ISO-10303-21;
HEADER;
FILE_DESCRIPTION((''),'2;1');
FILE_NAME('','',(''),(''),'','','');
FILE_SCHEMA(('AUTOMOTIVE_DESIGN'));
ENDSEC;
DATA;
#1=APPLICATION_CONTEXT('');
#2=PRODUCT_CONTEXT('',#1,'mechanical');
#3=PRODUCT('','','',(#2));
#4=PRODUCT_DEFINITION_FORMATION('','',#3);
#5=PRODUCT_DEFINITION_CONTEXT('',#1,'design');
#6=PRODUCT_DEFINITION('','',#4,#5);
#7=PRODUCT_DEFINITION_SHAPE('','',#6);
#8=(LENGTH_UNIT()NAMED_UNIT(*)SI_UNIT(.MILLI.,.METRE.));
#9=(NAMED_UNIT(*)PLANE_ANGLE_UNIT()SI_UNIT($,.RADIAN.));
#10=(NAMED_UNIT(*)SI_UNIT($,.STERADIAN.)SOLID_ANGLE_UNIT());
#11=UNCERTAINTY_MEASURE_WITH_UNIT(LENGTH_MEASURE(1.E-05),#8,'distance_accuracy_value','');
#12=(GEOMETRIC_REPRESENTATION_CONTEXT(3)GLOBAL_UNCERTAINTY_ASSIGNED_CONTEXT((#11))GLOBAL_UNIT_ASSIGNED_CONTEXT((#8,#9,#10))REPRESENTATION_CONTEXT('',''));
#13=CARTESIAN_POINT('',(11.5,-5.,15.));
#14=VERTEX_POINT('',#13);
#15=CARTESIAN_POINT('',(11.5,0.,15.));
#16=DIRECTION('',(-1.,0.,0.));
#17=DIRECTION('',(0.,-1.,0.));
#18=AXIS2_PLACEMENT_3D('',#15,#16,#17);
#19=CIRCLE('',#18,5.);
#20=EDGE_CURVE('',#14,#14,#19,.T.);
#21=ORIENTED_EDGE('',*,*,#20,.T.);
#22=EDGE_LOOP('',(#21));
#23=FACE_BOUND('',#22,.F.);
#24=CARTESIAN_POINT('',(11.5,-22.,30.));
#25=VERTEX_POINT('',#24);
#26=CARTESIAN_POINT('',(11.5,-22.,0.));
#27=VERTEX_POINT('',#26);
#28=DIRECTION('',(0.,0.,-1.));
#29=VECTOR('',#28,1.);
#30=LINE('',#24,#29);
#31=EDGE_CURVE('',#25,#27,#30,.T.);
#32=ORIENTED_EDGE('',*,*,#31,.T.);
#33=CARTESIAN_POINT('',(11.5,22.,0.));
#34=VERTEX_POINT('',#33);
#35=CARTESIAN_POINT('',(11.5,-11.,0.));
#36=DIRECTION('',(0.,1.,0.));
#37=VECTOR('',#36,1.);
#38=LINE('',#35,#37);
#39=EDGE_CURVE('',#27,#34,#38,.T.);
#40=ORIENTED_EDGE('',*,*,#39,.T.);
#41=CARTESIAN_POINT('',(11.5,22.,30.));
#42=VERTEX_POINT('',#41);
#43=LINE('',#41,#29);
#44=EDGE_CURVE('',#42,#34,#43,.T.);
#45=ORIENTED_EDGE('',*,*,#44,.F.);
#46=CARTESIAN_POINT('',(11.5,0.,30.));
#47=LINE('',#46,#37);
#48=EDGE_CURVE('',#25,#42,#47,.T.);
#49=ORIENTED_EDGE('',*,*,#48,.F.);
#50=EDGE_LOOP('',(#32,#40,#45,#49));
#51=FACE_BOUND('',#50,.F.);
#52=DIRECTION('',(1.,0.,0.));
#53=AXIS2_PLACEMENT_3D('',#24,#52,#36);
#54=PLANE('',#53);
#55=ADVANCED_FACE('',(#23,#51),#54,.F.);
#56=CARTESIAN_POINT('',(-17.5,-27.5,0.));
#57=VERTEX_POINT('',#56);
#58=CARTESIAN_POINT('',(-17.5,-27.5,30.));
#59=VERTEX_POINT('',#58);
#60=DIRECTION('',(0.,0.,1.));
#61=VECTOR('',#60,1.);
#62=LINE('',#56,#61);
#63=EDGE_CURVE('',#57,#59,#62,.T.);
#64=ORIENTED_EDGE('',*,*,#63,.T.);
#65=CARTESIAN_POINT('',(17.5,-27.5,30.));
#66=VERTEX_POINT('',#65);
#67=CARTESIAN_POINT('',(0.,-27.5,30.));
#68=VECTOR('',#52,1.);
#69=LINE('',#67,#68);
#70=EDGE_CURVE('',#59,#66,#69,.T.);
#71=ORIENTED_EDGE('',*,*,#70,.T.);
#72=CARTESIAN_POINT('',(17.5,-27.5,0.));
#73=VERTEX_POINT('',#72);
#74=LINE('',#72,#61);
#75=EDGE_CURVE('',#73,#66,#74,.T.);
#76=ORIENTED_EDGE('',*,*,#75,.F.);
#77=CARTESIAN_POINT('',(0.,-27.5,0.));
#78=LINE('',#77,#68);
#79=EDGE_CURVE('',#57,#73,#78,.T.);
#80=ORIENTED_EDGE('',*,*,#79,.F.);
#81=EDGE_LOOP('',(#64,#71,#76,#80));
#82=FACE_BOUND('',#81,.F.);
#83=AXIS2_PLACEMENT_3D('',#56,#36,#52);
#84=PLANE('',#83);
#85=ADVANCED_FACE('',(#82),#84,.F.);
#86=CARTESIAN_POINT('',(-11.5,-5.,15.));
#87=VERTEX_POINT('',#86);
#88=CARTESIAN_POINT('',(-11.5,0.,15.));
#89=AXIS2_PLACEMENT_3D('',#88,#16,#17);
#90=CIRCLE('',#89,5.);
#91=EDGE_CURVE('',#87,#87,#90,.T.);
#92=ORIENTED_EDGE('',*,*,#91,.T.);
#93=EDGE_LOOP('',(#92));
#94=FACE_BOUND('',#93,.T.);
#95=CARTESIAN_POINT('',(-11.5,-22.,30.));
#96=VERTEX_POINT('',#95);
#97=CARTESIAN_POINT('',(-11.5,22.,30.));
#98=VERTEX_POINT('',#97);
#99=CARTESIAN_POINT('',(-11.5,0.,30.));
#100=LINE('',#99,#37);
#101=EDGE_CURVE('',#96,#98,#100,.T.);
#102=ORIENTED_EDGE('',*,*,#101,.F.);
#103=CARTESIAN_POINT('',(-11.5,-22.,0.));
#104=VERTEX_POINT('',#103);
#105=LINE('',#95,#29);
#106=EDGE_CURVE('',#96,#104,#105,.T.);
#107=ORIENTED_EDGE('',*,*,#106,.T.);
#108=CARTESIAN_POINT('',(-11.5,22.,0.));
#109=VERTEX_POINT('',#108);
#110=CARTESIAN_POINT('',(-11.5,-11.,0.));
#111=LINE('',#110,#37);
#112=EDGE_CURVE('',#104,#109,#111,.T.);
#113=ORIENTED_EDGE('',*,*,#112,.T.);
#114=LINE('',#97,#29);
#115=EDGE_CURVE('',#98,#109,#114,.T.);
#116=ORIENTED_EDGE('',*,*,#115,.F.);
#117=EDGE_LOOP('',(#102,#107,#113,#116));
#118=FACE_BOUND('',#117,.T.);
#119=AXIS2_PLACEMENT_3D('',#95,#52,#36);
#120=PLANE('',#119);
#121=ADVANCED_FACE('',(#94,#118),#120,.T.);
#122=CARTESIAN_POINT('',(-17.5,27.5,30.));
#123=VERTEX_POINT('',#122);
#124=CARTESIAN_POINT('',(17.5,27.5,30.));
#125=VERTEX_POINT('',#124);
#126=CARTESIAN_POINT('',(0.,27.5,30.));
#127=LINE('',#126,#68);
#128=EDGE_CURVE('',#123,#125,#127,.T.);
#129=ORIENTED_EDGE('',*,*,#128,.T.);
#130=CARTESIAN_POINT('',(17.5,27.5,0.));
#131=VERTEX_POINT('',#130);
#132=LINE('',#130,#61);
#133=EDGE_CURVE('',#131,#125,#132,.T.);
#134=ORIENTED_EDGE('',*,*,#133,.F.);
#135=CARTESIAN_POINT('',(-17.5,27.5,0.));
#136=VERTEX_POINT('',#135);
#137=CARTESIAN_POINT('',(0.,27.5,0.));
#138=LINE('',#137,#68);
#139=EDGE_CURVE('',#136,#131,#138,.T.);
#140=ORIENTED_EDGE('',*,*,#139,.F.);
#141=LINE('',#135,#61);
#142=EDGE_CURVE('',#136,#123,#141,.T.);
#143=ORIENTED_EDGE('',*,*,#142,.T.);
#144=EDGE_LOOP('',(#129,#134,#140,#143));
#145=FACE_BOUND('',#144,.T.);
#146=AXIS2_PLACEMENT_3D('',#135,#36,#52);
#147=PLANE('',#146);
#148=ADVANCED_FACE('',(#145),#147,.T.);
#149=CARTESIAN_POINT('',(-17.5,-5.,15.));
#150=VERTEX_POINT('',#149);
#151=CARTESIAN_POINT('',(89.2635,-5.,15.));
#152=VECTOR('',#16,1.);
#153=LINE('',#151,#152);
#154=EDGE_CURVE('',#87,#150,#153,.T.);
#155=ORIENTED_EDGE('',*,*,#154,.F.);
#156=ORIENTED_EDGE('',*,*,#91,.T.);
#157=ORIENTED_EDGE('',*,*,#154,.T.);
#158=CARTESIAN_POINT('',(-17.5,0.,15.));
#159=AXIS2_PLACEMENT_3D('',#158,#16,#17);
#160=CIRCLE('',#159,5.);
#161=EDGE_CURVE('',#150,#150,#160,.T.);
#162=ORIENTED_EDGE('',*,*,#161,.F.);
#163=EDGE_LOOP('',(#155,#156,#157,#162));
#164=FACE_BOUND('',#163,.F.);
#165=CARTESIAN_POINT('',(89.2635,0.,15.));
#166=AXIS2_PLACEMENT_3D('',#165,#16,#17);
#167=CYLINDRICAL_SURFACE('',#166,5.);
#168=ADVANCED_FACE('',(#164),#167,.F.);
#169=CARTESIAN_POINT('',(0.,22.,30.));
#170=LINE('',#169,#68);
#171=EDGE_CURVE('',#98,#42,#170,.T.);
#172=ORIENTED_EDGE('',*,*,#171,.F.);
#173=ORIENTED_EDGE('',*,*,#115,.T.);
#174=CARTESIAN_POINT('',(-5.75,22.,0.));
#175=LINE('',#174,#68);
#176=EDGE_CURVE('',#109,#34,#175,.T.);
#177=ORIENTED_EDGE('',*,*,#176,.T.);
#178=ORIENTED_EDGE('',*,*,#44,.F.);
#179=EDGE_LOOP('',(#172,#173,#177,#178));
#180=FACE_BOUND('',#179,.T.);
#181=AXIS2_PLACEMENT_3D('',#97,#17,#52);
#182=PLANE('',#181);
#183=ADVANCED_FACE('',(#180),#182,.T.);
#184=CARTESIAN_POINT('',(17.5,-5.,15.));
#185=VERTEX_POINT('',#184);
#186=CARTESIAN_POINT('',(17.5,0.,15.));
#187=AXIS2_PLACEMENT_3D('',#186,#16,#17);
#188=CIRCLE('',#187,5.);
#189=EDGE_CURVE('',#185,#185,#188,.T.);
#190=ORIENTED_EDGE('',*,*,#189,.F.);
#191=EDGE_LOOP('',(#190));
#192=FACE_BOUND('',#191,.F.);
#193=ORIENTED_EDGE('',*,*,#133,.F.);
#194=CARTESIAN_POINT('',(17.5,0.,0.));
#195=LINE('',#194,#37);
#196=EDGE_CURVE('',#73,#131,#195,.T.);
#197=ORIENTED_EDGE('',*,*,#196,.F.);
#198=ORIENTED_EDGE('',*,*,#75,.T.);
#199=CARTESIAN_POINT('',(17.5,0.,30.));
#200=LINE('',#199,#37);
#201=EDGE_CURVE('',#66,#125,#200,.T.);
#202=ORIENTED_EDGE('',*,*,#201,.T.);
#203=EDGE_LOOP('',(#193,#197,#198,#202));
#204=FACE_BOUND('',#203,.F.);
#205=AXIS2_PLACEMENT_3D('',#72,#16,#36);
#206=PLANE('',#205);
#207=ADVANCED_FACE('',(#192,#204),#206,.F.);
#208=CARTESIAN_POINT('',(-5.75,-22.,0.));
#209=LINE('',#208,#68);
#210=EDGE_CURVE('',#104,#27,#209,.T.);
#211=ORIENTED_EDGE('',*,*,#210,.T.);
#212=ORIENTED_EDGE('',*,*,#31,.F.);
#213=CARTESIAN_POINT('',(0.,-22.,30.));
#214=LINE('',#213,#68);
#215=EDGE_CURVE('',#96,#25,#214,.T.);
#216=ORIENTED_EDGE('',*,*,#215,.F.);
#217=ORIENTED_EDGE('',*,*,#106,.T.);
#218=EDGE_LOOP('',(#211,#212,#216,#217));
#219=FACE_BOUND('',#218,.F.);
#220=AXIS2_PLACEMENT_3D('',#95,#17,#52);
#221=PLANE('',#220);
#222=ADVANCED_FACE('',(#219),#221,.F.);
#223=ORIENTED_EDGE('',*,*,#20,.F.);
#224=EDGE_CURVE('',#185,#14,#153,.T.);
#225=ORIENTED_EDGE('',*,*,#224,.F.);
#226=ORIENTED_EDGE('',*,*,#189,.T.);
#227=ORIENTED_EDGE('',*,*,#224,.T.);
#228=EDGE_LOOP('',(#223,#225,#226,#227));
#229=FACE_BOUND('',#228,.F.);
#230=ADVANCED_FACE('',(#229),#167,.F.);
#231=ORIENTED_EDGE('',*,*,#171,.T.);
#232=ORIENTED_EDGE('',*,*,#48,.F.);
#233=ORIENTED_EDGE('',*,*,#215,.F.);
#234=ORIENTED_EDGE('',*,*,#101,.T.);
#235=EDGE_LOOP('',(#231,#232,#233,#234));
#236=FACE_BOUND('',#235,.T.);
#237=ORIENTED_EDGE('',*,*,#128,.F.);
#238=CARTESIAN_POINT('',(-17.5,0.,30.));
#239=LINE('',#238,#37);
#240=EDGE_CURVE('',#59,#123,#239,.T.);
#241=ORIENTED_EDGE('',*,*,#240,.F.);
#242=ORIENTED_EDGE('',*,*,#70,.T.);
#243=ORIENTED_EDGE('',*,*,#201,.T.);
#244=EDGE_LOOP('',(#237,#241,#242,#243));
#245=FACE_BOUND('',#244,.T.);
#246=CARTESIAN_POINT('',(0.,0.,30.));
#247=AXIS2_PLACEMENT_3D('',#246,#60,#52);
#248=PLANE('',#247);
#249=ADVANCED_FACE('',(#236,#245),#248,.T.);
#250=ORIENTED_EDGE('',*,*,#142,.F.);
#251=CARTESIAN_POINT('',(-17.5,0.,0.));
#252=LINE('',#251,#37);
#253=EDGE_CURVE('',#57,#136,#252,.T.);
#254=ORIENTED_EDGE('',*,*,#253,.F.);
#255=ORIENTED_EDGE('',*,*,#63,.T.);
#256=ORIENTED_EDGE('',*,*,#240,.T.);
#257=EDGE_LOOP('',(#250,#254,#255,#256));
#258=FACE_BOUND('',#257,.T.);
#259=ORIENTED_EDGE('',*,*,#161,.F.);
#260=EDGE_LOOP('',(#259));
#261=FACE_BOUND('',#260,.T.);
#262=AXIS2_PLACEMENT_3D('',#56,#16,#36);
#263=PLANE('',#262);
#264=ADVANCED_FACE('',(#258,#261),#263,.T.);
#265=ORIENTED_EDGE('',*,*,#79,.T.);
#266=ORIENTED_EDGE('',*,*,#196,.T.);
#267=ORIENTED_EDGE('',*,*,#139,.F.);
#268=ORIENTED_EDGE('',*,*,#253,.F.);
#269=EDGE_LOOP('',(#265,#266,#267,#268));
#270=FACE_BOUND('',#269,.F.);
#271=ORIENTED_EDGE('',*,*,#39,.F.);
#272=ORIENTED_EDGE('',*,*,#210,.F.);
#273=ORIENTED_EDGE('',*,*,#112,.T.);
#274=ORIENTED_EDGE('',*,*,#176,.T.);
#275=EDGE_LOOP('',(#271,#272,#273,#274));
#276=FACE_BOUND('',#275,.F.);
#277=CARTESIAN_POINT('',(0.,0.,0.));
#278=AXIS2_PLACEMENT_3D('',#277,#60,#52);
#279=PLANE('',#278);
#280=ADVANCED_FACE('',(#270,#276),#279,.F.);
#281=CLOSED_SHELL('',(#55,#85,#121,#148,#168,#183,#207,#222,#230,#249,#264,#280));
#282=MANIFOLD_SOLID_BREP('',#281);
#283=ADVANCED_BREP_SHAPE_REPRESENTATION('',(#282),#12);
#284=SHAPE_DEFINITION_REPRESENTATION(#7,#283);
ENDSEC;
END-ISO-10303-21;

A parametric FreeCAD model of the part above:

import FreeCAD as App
import Part
import Sketcher

V = App.Vector
Q = App.Units.Quantity

doc = App.newDocument("Part")
params = doc.addObject("Spreadsheet::Sheet", "Params")
for row, (alias, value) in enumerate([
    ("sketch1_width", "35 mm"),
    ("sketch1_height", "55 mm"),
    ("pad1_length", "30 mm"),
    ("sketch2_width", "23 mm"),
    ("sketch2_height", "44 mm"),
    ("pocket1_length", "40 mm"),
    ("sketch3_diameter", "10 mm"),
    ("hole_diameter", "10 mm"),
], start=1):
    params.set(f"A{row}", alias)
    params.set(f"B{row}", "=" + value)
    params.setAlias(f"B{row}", alias)

body = doc.addObject("PartDesign::Body", "Body")

# Sketch on XY plane
sketch1 = doc.addObject("Sketcher::SketchObject", "Sketch")
body.addObject(sketch1)
sketch1.AttachmentSupport = (doc.XY_Plane, [""])
sketch1.MapMode = "FlatFace"
sketch1.addGeometry([
    Part.LineSegment(V(-18, 28, 0), V(-18, -28, 0)),
    Part.LineSegment(V(-18, -28, 0), V(18, -28, 0)),
    Part.LineSegment(V(18, -28, 0), V(18, 28, 0)),
    Part.LineSegment(V(18, 28, 0), V(-18, 28, 0)),
], False)
sketch1.addConstraint([
    Sketcher.Constraint("Coincident", 0, 2, 1, 1),
    Sketcher.Constraint("Coincident", 1, 2, 2, 1),
    Sketcher.Constraint("Coincident", 2, 2, 3, 1),
    Sketcher.Constraint("Coincident", 3, 2, 0, 1),
    Sketcher.Constraint("Vertical", 0),
    Sketcher.Constraint("Horizontal", 1),
    Sketcher.Constraint("Vertical", 2),
    Sketcher.Constraint("Horizontal", 3),
    Sketcher.Constraint("Symmetric", 0, 2, 2, 2, -1, 1),
    Sketcher.Constraint("DistanceX", 1, 1, 1, 2, Q("35 mm")),
    Sketcher.Constraint("DistanceY", 0, 2, 0, 1, Q("55 mm")),
])
sketch1.setExpression("Constraints[9]", "Params.sketch1_width")
sketch1.setExpression("Constraints[10]", "Params.sketch1_height")
pad1 = doc.addObject("PartDesign::Pad", "Pad")
body.addObject(pad1)
pad1.Profile = sketch1
pad1.setExpression("Length", "Params.pad1_length")

# Sketch on XY plane
sketch2 = doc.addObject("Sketcher::SketchObject", "Sketch001")
body.addObject(sketch2)
sketch2.AttachmentSupport = (doc.XY_Plane, [""])
sketch2.MapMode = "FlatFace"
sketch2.AttachmentOffset = App.Placement(V(0, 0, 30), App.Rotation())
sketch2.addGeometry([
    Part.LineSegment(V(-12, 22, 0), V(-12, -22, 0)),
    Part.LineSegment(V(-12, -22, 0), V(12, -22, 0)),
    Part.LineSegment(V(12, -22, 0), V(12, 22, 0)),
    Part.LineSegment(V(12, 22, 0), V(-12, 22, 0)),
], False)
sketch2.addConstraint([
    Sketcher.Constraint("Coincident", 0, 2, 1, 1),
    Sketcher.Constraint("Coincident", 1, 2, 2, 1),
    Sketcher.Constraint("Coincident", 2, 2, 3, 1),
    Sketcher.Constraint("Coincident", 3, 2, 0, 1),
    Sketcher.Constraint("Vertical", 0),
    Sketcher.Constraint("Horizontal", 1),
    Sketcher.Constraint("Vertical", 2),
    Sketcher.Constraint("Horizontal", 3),
    Sketcher.Constraint("Symmetric", 0, 2, 2, 2, -1, 1),
    Sketcher.Constraint("DistanceX", 1, 1, 1, 2, Q("23 mm")),
    Sketcher.Constraint("DistanceY", 0, 2, 0, 1, Q("44 mm")),
])
sketch2.setExpression("Constraints[9]", "Params.sketch2_width")
sketch2.setExpression("Constraints[10]", "Params.sketch2_height")
pocket1 = doc.addObject("PartDesign::Pocket", "Pocket")
body.addObject(pocket1)
pocket1.Profile = sketch2
pocket1.setExpression("Length", "Params.pocket1_length")

# Sketch on YZ plane
sketch3 = doc.addObject("Sketcher::SketchObject", "Sketch002")
body.addObject(sketch3)
sketch3.AttachmentSupport = (doc.YZ_Plane, [""])
sketch3.MapMode = "FlatFace"
sketch3.AttachmentOffset = App.Placement(V(0, 0, 17.5), App.Rotation())
sketch3.addGeometry(Part.Circle(V(0, 15, 0), V(0, 0, 1), 5), False)
sketch3.addConstraint([
    Sketcher.Constraint("PointOnObject", 0, 3, -2),
    Sketcher.Constraint("Diameter", 0, Q("10 mm")),
    Sketcher.Constraint("DistanceY", -1, 1, 0, 3, Q("15 mm")),
])
sketch3.setExpression("Constraints[1]", "Params.sketch3_diameter")
doc.recompute()
hole = doc.addObject("PartDesign::Hole", "Hole")
body.addObject(hole)
hole.Profile = sketch3
hole.ThreadType = "None"
hole.setExpression("Diameter", "Params.hole_diameter")
hole.DepthType = "ThroughAll"

doc.recompute()
